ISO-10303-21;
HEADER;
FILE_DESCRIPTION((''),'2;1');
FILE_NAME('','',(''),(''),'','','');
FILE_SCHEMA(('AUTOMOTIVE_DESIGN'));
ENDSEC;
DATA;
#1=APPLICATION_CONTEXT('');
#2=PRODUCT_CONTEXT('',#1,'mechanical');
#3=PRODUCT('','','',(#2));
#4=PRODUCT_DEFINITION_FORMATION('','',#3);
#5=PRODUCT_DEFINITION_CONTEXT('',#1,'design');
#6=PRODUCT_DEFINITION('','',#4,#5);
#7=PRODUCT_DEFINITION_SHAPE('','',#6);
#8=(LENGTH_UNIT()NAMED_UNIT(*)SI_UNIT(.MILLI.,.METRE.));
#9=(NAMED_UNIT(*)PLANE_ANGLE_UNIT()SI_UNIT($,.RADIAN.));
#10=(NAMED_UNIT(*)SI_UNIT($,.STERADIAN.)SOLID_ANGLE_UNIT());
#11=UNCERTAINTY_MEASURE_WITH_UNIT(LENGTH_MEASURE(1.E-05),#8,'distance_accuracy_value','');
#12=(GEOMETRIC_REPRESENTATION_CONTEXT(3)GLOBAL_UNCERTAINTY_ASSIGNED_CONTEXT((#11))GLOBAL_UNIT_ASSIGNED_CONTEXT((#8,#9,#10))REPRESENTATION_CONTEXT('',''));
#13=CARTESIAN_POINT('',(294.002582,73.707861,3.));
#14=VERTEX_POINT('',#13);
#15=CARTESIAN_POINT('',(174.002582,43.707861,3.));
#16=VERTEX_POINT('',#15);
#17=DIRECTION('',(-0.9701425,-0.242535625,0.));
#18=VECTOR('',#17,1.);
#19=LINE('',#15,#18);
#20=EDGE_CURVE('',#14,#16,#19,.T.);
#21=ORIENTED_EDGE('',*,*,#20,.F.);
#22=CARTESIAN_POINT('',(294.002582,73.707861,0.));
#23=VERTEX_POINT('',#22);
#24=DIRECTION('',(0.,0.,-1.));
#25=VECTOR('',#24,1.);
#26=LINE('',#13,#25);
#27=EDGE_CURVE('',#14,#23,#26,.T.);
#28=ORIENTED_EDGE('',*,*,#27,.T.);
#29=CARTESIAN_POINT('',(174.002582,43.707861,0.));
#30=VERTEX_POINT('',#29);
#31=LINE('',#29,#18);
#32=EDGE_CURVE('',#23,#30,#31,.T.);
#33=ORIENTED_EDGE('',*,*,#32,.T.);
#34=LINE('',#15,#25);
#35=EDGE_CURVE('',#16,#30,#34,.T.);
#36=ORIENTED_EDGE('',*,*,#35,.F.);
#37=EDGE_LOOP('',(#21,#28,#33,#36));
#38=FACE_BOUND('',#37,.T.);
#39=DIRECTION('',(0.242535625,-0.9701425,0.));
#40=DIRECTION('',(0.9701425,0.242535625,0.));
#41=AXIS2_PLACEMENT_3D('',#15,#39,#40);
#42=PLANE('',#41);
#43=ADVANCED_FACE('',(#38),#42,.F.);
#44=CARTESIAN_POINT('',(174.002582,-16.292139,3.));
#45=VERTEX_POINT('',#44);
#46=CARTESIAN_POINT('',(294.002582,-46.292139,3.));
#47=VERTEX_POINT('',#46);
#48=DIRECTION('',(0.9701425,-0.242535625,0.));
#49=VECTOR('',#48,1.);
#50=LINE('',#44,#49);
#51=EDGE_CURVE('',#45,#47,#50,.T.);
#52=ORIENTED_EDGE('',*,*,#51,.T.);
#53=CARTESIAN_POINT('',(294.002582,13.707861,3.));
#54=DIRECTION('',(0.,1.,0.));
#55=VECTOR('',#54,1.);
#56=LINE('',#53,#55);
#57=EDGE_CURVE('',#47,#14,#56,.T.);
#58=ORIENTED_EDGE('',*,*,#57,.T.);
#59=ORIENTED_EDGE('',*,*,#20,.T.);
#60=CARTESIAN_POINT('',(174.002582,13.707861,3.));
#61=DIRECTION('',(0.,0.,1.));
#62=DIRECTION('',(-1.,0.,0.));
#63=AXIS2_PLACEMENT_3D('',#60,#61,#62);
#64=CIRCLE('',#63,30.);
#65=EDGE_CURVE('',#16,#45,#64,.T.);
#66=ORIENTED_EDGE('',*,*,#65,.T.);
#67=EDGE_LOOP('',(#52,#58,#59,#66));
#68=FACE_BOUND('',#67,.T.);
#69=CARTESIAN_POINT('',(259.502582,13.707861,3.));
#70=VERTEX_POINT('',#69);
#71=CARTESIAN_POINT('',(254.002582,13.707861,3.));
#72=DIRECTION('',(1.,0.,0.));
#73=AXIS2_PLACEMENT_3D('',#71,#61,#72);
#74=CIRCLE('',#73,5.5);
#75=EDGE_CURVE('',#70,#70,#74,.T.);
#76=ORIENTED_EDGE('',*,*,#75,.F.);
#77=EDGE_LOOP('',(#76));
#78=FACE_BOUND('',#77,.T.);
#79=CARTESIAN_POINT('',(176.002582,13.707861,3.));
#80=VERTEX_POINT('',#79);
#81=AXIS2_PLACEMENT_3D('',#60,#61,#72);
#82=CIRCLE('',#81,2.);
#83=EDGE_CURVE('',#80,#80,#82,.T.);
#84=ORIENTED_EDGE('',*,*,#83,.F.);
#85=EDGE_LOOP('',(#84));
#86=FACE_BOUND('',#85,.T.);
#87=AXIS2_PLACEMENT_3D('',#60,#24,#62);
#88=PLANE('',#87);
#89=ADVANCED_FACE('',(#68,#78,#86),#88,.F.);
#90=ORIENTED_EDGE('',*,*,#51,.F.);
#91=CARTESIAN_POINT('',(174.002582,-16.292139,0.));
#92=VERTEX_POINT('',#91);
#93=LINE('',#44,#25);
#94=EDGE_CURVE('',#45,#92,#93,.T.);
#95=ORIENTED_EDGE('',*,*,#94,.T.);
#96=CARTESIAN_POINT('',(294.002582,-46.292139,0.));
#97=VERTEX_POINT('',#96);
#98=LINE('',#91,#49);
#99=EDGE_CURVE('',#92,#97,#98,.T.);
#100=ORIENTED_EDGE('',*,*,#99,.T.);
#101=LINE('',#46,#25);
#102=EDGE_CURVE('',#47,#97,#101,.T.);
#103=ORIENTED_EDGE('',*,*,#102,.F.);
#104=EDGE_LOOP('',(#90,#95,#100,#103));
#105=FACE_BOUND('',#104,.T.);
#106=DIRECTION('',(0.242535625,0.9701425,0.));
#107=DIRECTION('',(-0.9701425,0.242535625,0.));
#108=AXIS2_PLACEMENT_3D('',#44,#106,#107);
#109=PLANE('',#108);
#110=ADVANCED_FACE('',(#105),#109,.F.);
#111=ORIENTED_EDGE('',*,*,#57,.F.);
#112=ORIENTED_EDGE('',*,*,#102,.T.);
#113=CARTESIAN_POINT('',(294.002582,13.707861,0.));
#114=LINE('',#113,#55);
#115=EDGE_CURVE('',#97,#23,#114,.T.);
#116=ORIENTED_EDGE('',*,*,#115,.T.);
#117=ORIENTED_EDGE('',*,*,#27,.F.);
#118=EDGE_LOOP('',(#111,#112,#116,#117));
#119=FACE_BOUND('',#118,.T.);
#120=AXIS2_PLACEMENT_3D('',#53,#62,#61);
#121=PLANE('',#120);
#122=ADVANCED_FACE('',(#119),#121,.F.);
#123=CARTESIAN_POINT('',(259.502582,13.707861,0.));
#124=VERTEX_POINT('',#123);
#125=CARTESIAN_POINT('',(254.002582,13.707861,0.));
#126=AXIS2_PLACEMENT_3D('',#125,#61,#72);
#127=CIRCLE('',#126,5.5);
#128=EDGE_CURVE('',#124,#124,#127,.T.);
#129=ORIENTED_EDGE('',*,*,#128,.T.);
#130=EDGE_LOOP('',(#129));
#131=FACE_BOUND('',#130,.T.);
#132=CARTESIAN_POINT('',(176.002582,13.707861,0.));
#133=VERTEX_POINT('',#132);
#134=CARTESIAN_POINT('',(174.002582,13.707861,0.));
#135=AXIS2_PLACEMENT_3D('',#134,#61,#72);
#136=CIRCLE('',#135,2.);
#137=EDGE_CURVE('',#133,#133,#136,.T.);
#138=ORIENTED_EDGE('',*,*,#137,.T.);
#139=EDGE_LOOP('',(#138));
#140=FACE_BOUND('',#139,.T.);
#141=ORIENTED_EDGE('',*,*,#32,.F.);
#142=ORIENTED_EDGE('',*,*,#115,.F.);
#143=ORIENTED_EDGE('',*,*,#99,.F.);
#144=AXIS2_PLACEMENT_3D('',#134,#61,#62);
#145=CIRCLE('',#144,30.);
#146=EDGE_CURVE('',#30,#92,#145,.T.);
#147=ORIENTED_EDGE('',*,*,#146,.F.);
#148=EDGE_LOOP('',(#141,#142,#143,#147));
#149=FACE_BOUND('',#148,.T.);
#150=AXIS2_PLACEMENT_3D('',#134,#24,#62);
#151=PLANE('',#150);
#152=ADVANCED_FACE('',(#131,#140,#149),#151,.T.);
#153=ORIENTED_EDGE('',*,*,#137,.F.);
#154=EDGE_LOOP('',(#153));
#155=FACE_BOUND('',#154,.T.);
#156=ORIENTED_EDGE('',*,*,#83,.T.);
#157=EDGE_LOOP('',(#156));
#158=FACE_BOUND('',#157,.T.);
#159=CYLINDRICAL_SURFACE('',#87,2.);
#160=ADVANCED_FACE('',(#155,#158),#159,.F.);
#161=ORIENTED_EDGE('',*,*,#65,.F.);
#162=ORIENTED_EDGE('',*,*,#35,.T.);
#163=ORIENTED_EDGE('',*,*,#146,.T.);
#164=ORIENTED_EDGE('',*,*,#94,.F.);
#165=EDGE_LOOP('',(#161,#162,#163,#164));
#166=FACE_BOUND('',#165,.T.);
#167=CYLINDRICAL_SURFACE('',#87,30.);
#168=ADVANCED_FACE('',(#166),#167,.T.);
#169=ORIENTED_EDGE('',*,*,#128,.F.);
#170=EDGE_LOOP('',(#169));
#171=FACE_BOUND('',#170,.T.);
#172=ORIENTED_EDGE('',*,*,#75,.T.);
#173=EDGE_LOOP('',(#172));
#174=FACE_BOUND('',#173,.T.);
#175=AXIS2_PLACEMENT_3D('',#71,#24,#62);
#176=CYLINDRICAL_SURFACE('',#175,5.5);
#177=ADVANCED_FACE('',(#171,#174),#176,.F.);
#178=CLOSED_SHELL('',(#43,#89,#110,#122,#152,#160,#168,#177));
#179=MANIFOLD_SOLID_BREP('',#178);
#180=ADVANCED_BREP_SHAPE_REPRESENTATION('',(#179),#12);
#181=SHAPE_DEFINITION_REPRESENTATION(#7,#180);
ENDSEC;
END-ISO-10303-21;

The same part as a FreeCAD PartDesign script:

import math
import FreeCAD as App
import Part
import Sketcher

V = App.Vector
Q = App.Units.Quantity

doc = App.newDocument("Part")
params = doc.addObject("Spreadsheet::Sheet", "Params")
for row, (alias, value) in enumerate([
    ("sketch1_diameter", "11 mm"),
    ("sketch1_diameter2", "4 mm"),
    ("sketch1_radius", "30 mm"),
    ("sketch1_height", "120 mm"),
    ("pad1_length", "3 mm"),
], start=1):
    params.set(f"A{row}", alias)
    params.set(f"B{row}", "=" + value)
    params.setAlias(f"B{row}", alias)

body = doc.addObject("PartDesign::Body", "Body")

sketch1 = body.newObject("Sketcher::SketchObject", "Sketch")
sketch1.AttachmentSupport = (doc.getObject("XY_Plane"), [""])
sketch1.MapMode = "FlatFace"
sketch1.addGeometry(Part.LineSegment(V(294, 73.7, 0), V(174, 43.7, 0)), False)
sketch1.addGeometry(Part.ArcOfCircle(Part.Circle(V(174, 13.7, 0), V(0, 0, 1), 30), math.radians(90), math.radians(270)), False)
sketch1.addGeometry(Part.LineSegment(V(174, -16.3, 0), V(294, -46.3, 0)), False)
sketch1.addGeometry(Part.LineSegment(V(294, -46.3, 0), V(294, 73.7, 0)), False)
sketch1.addGeometry(Part.Circle(V(254, 13.7, 0), V(0, 0, 1), 5.5), False)
sketch1.addGeometry(Part.Circle(V(174, 13.7, 0), V(0, 0, 1), 2), False)
sketch1.addConstraint(Sketcher.Constraint("Coincident", 0, 2, 1, 1))
sketch1.addConstraint(Sketcher.Constraint("Coincident", 1, 2, 2, 1))
sketch1.addConstraint(Sketcher.Constraint("Coincident", 2, 2, 3, 1))
sketch1.addConstraint(Sketcher.Constraint("Coincident", 3, 2, 0, 1))
sketch1.addConstraint(Sketcher.Constraint("Vertical", 3))
sketch1.addConstraint(Sketcher.Constraint("Coincident", 5, 3, 1, 3))
sketch1.addConstraint(Sketcher.Constraint("Horizontal", 1, 3, 4, 3))
sketch1.addConstraint(Sketcher.Constraint("Vertical", 5, 3, 0, 2))
sketch1.addConstraint(Sketcher.Constraint("Vertical", 0, 2, 1, 2))
sketch1.addConstraint(Sketcher.Constraint("Equal", 0, 2))
sketch1.addConstraint(Sketcher.Constraint("Diameter", 4, Q("11 mm")))
sketch1.addConstraint(Sketcher.Constraint("Diameter", 5, Q("4 mm")))
sketch1.addConstraint(Sketcher.Constraint("Radius", 1, Q("30 mm")))
sketch1.addConstraint(Sketcher.Constraint("DistanceY", 3, 1, 3, 2, Q("120 mm")))
sketch1.addConstraint(Sketcher.Constraint("DistanceX", 1, 3, 4, 3, Q("80 mm")))
sketch1.addConstraint(Sketcher.Constraint("DistanceX", 4, 3, 2, 2, Q("40 mm")))
sketch1.addConstraint(Sketcher.Constraint("DistanceX", -1, 1, 1, 3, Q("174.002582 mm")))
sketch1.addConstraint(Sketcher.Constraint("DistanceY", -1, 1, 1, 3, Q("13.707861 mm")))
sketch1.setExpression("Constraints[10]", "Params.sketch1_diameter")
sketch1.setExpression("Constraints[11]", "Params.sketch1_diameter2")
sketch1.setExpression("Constraints[12]", "Params.sketch1_radius")
sketch1.setExpression("Constraints[13]", "Params.sketch1_height")
pad1 = body.newObject("PartDesign::Pad", "Pad")
pad1.Profile = sketch1
pad1.setExpression("Length", "Params.pad1_length")

doc.recompute()
